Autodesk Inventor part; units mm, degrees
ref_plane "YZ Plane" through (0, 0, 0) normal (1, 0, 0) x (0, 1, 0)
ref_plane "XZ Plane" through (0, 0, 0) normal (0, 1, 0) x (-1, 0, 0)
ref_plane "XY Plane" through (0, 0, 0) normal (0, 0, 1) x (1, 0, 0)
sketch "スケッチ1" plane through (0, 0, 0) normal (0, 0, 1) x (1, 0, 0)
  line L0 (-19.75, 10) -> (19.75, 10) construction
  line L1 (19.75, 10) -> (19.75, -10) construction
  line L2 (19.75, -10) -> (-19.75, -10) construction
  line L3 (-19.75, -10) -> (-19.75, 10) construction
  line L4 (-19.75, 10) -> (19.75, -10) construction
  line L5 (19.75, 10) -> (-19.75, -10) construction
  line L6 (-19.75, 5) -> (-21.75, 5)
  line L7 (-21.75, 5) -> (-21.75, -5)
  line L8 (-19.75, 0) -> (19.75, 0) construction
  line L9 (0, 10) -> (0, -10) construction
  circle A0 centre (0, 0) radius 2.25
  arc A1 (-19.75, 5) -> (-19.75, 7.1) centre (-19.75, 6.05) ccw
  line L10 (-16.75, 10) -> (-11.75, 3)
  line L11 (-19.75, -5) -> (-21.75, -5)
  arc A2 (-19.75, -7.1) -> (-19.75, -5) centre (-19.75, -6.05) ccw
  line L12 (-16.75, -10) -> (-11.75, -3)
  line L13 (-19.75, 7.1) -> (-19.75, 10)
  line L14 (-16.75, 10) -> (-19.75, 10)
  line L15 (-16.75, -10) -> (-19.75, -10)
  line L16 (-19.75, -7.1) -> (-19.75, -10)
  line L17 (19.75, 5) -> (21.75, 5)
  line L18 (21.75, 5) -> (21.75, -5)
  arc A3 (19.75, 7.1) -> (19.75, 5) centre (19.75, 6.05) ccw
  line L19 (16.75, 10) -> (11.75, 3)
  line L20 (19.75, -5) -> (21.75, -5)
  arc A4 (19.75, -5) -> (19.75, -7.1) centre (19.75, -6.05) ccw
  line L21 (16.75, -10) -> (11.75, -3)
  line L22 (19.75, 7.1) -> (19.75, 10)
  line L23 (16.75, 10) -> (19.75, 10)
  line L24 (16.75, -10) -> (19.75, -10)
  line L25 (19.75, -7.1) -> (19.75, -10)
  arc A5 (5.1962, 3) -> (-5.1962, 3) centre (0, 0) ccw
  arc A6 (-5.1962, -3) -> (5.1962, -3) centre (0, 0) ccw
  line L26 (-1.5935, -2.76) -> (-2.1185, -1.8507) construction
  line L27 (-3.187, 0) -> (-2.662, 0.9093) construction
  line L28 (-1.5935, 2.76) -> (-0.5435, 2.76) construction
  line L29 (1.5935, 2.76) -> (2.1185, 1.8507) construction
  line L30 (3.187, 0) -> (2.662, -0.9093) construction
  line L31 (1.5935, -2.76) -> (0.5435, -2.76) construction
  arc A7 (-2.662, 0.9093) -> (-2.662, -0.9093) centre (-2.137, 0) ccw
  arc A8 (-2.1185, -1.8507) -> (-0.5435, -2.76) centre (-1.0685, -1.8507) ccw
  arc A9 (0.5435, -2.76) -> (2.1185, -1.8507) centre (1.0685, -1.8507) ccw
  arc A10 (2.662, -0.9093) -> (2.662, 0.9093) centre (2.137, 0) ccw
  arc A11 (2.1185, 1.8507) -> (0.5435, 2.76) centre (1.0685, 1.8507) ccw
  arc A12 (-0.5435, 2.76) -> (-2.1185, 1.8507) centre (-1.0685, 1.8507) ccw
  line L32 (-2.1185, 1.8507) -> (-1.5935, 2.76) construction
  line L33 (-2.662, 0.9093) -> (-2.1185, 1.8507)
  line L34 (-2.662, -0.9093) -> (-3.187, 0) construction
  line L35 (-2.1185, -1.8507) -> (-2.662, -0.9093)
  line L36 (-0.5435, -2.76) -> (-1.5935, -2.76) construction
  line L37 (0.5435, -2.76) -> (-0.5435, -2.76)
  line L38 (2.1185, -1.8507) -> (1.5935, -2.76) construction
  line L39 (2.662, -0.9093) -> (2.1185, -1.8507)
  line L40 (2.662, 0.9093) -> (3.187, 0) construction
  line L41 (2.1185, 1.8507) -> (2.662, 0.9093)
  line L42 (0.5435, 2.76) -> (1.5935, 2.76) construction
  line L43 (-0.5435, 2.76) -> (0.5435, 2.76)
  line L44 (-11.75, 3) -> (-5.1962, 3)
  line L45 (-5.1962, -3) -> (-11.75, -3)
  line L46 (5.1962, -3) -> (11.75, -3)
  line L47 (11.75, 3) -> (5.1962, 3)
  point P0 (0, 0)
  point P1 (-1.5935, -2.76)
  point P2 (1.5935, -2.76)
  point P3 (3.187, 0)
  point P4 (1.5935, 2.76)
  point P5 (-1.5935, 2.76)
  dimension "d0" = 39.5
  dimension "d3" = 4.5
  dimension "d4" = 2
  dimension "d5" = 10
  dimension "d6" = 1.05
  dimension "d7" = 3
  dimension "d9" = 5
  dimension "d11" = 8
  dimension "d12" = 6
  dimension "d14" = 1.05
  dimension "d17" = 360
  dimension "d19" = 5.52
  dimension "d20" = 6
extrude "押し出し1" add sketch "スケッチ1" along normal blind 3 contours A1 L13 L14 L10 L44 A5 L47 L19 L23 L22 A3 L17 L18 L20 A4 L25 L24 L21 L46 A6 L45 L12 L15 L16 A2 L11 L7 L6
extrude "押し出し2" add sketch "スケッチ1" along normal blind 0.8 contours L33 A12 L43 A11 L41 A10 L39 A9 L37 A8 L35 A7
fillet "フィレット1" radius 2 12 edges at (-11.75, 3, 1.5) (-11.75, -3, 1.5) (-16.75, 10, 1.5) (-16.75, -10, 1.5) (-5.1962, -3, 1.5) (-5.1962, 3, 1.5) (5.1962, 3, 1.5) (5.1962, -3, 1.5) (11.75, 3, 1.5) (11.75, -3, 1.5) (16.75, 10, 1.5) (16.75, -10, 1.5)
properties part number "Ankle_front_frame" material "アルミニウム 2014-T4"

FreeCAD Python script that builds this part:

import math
import FreeCAD as App
import Part
import Sketcher
Q = App.Units.Quantity


def edges_at(feature, points):
    """Names of the edges that pass closest to the given points."""
    edges = feature.Shape.Edges
    near = lambda p: min(range(len(edges)), key=lambda i: edges[i].distToShape(Part.Vertex(*p))[0])
    return sorted({f"Edge{near(p) + 1}" for p in points})

doc = App.newDocument("Part")
body = doc.addObject("PartDesign::Body", "Body")

sketch1 = doc.addObject("Sketcher::SketchObject", "Sketch")
body.addObject(sketch1)
sketch1.AttachmentSupport = (doc.XY_Plane, [""])
sketch1.MapMode = "FlatFace"
sketch1.addGeometry([
    Part.ArcOfCircle(Part.Circle(App.Vector(-19.8, 6, 0), App.Vector(0, 0, 1), 1), math.radians(-90), math.radians(90)),
    Part.LineSegment(App.Vector(-19.8, 5, 0), App.Vector(-21.8, 5, 0)),
    Part.LineSegment(App.Vector(-21.8, 5, 0), App.Vector(-21.8, -5, 0)),
    Part.LineSegment(App.Vector(-21.8, -5, 0), App.Vector(-19.8, -5, 0)),
    Part.ArcOfCircle(Part.Circle(App.Vector(-19.8, -6, 0), App.Vector(0, 0, 1), 1), math.radians(-90), math.radians(90)),
    Part.LineSegment(App.Vector(-19.8, -7.1, 0), App.Vector(-19.8, -10, 0)),
    Part.LineSegment(App.Vector(-19.8, -10, 0), App.Vector(-16.8, -10, 0)),
    Part.LineSegment(App.Vector(-16.8, -10, 0), App.Vector(-11.8, -3, 0)),
    Part.LineSegment(App.Vector(-11.8, -3, 0), App.Vector(-5.2, -3, 0)),
    Part.ArcOfCircle(Part.Circle(App.Vector(0, 0, 0), App.Vector(0, 0, 1), 6), math.radians(-150), math.radians(-30)),
    Part.LineSegment(App.Vector(5.2, -3, 0), App.Vector(11.8, -3, 0)),
    Part.LineSegment(App.Vector(11.8, -3, 0), App.Vector(16.8, -10, 0)),
    Part.LineSegment(App.Vector(16.8, -10, 0), App.Vector(19.8, -10, 0)),
    Part.LineSegment(App.Vector(19.8, -10, 0), App.Vector(19.8, -7.1, 0)),
    Part.ArcOfCircle(Part.Circle(App.Vector(19.8, -6, 0), App.Vector(0, 0, 1), 1), math.radians(90), math.radians(270)),
    Part.LineSegment(App.Vector(19.8, -5, 0), App.Vector(21.8, -5, 0)),
    Part.LineSegment(App.Vector(21.8, -5, 0), App.Vector(21.8, 5, 0)),
    Part.LineSegment(App.Vector(21.8, 5, 0), App.Vector(19.8, 5, 0)),
    Part.ArcOfCircle(Part.Circle(App.Vector(19.8, 6, 0), App.Vector(0, 0, 1), 1), math.radians(90), math.radians(270)),
    Part.LineSegment(App.Vector(19.8, 7.1, 0), App.Vector(19.8, 10, 0)),
    Part.LineSegment(App.Vector(19.8, 10, 0), App.Vector(16.8, 10, 0)),
    Part.LineSegment(App.Vector(16.8, 10, 0), App.Vector(11.8, 3, 0)),
    Part.LineSegment(App.Vector(11.8, 3, 0), App.Vector(5.2, 3, 0)),
    Part.ArcOfCircle(Part.Circle(App.Vector(0, 0, 0), App.Vector(0, 0, 1), 6), math.radians(30), math.radians(150)),
    Part.LineSegment(App.Vector(-5.2, 3, 0), App.Vector(-11.8, 3, 0)),
    Part.LineSegment(App.Vector(-11.8, 3, 0), App.Vector(-16.8, 10, 0)),
    Part.LineSegment(App.Vector(-16.8, 10, 0), App.Vector(-19.8, 10, 0)),
    Part.LineSegment(App.Vector(-19.8, 10, 0), App.Vector(-19.8, 7.1, 0)),
    Part.ArcOfCircle(Part.Circle(App.Vector(-2.1, 0, 0), App.Vector(0, 0, 1), 1), math.radians(120), math.radians(240)),
    Part.LineSegment(App.Vector(-2.7, 0.9, 0), App.Vector(-2.1, 1.9, 0)),
    Part.ArcOfCircle(Part.Circle(App.Vector(-1.1, 1.9, 0), App.Vector(0, 0, 1), 1), math.radians(60), math.radians(180)),
    Part.LineSegment(App.Vector(-0.5, 2.8, 0), App.Vector(0.5, 2.8, 0)),
    Part.ArcOfCircle(Part.Circle(App.Vector(1.1, 1.9, 0), App.Vector(0, 0, 1), 1.1), math.radians(0), math.radians(120)),
    Part.LineSegment(App.Vector(2.1, 1.9, 0), App.Vector(2.7, 0.9, 0)),
    Part.ArcOfCircle(Part.Circle(App.Vector(2.1, 0, 0), App.Vector(0, 0, 1), 1), math.radians(-60), math.radians(60)),
    Part.LineSegment(App.Vector(2.7, -0.9, 0), App.Vector(2.1, -1.9, 0)),
    Part.ArcOfCircle(Part.Circle(App.Vector(1.1, -1.9, 0), App.Vector(0, 0, 1), 1), math.radians(-120), math.radians(0)),
    Part.LineSegment(App.Vector(0.5, -2.8, 0), App.Vector(-0.5, -2.8, 0)),
    Part.ArcOfCircle(Part.Circle(App.Vector(-1.1, -1.9, 0), App.Vector(0, 0, 1), 1.1), math.radians(180), math.radians(300)),
    Part.LineSegment(App.Vector(-2.1, -1.9, 0), App.Vector(-2.7, -0.9, 0)),
], False)
sketch1.addConstraint([
    Sketcher.Constraint("Tangent", 0, 1, 1, 1),
    Sketcher.Constraint("Coincident", 1, 2, 2, 1),
    Sketcher.Constraint("Coincident", 2, 2, 3, 1),
    Sketcher.Constraint("Tangent", 3, 2, 4, 2),
    Sketcher.Constraint("Coincident", 4, 1, 5, 1),
    Sketcher.Constraint("Coincident", 5, 2, 6, 1),
    Sketcher.Constraint("Coincident", 6, 2, 7, 1),
    Sketcher.Constraint("Coincident", 7, 2, 8, 1),
    Sketcher.Constraint("Coincident", 8, 2, 9, 1),
    Sketcher.Constraint("Coincident", 9, 2, 10, 1),
    Sketcher.Constraint("Coincident", 10, 2, 11, 1),
    Sketcher.Constraint("Coincident", 11, 2, 12, 1),
    Sketcher.Constraint("Coincident", 12, 2, 13, 1),
    Sketcher.Constraint("Coincident", 13, 2, 14, 2),
    Sketcher.Constraint("Tangent", 14, 1, 15, 1),
    Sketcher.Constraint("Coincident", 15, 2, 16, 1),
    Sketcher.Constraint("Coincident", 16, 2, 17, 1),
    Sketcher.Constraint("Tangent", 17, 2, 18, 2),
    Sketcher.Constraint("Coincident", 18, 1, 19, 1),
    Sketcher.Constraint("Coincident", 19, 2, 20, 1),
    Sketcher.Constraint("Coincident", 20, 2, 21, 1),
    Sketcher.Constraint("Coincident", 21, 2, 22, 1),
    Sketcher.Constraint("Coincident", 22, 2, 23, 1),
    Sketcher.Constraint("Coincident", 23, 2, 24, 1),
    Sketcher.Constraint("Coincident", 24, 2, 25, 1),
    Sketcher.Constraint("Coincident", 25, 2, 26, 1),
    Sketcher.Constraint("Coincident", 26, 2, 27, 1),
    Sketcher.Constraint("Coincident", 27, 2, 0, 2),
    Sketcher.Constraint("Coincident", 28, 1, 29, 1),
    Sketcher.Constraint("Coincident", 29, 2, 30, 2),
    Sketcher.Constraint("Coincident", 30, 1, 31, 1),
    Sketcher.Constraint("Coincident", 31, 2, 32, 2),
    Sketcher.Constraint("Coincident", 32, 1, 33, 1),
    Sketcher.Constraint("Coincident", 33, 2, 34, 2),
    Sketcher.Constraint("Coincident", 34, 1, 35, 1),
    Sketcher.Constraint("Coincident", 35, 2, 36, 2),
    Sketcher.Constraint("Coincident", 36, 1, 37, 1),
    Sketcher.Constraint("Coincident", 37, 2, 38, 2),
    Sketcher.Constraint("Coincident", 38, 1, 39, 1),
    Sketcher.Constraint("Coincident", 39, 2, 28, 2),
    Sketcher.Constraint("Horizontal", 1),
    Sketcher.Constraint("Vertical", 2),
    Sketcher.Constraint("Horizontal", 3),
    Sketcher.Constraint("Vertical", 5),
    Sketcher.Constraint("Horizontal", 6),
    Sketcher.Constraint("Horizontal", 8),
    Sketcher.Constraint("Horizontal", 10),
    Sketcher.Constraint("Horizontal", 12),
    Sketcher.Constraint("Vertical", 13),
    Sketcher.Constraint("Horizontal", 15),
    Sketcher.Constraint("Vertical", 16),
    Sketcher.Constraint("Horizontal", 17),
    Sketcher.Constraint("Vertical", 19),
    Sketcher.Constraint("Horizontal", 20),
    Sketcher.Constraint("Horizontal", 22),
    Sketcher.Constraint("Horizontal", 24),
    Sketcher.Constraint("Horizontal", 26),
    Sketcher.Constraint("Vertical", 27),
    Sketcher.Constraint("Horizontal", 31),
    Sketcher.Constraint("Horizontal", 37),
    Sketcher.Constraint("Coincident", 9, 3, -1, 1),
    Sketcher.Constraint("Coincident", 23, 3, -1, 1),
    Sketcher.Constraint("Equal", 0, 4),
    Sketcher.Constraint("Equal", 4, 14),
    Sketcher.Constraint("Equal", 14, 18),
    Sketcher.Constraint("Equal", 9, 23),
    Sketcher.Constraint("Equal", 18, 28),
    Sketcher.Constraint("Equal", 28, 30),
    Sketcher.Constraint("Equal", 30, 32),
    Sketcher.Constraint("Equal", 32, 34),
    Sketcher.Constraint("Equal", 34, 36),
    Sketcher.Constraint("Equal", 36, 38),
    Sketcher.Constraint("Symmetric", 0, 3, 14, 3, -1, 1),
    Sketcher.Constraint("Symmetric", 4, 3, 18, 3, -1, 1),
    Sketcher.Constraint("Symmetric", 28, 3, 34, 3, -1, 1),
    Sketcher.Constraint("Symmetric", 30, 3, 36, 3, -1, 1),
    Sketcher.Constraint("Symmetric", 32, 3, 38, 3, -1, 1),
    Sketcher.Constraint("Symmetric", 5, 2, 19, 2, -1, 1),
    Sketcher.Constraint("Symmetric", 7, 2, 21, 2, -1, 1),
    Sketcher.Constraint("Symmetric", 10, 2, 24, 2, -1, 1),
    Sketcher.Constraint("Symmetric", 11, 2, 25, 2, -1, 1),
    Sketcher.Constraint("Symmetric", 4, 3, 14, 3, -2),
    Sketcher.Constraint("Symmetric", 30, 3, 32, 3, -2),
    Sketcher.Constraint("Symmetric", 7, 2, 10, 2, -2),
    Sketcher.Constraint("Symmetric", 6, 2, 11, 2, -2),
    Sketcher.Constraint("Symmetric", 28, 1, 33, 2, -2),
    Sketcher.Constraint("Parallel", 7, 21),
    Sketcher.Constraint("Parallel", 29, 35),
    Sketcher.Constraint("Parallel", 33, 39),
    Sketcher.Constraint("Horizontal", 32, 3, 29, 2),
    Sketcher.Constraint("Horizontal", 29, 2, 32, 1),
    Sketcher.Constraint("Horizontal", 38, 3, 35, 2),
    Sketcher.Constraint("Horizontal", 35, 2, 38, 1),
    Sketcher.Constraint("Vertical", 3, 2, 4, 1),
    Sketcher.Constraint("Vertical", 18, 3, 12, 2),
    Sketcher.Constraint("Vertical", 5, 2, 26, 2),
    Sketcher.Constraint("Vertical", 31, 2, 36, 1),
    Sketcher.Constraint("Equal", 3, 15),
    Sketcher.Constraint("Radius", 9, Q("6 mm")),
    Sketcher.Constraint("DistanceX", 1, 2, 1, 1, Q("2 mm")),
    Sketcher.Constraint("DistanceX", 6, 1, 6, 2, Q("3 mm")),
    Sketcher.Constraint("DistanceY", 2, 2, 2, 1, Q("10 mm")),
    Sketcher.Constraint("Radius", 0, Q("1.05 mm")),
    Sketcher.Constraint("DistanceY", 5, 2, -1, 1, Q("10 mm")),
    Sketcher.Constraint("DistanceY", 7, 2, -1, 1, Q("3 mm")),
    Sketcher.Constraint("DistanceX", 3, 2, 7, 2, Q("8 mm")),
    Sketcher.Constraint("DistanceX", 4, 3, 14, 3, Q("39.5 mm")),
    Sketcher.Constraint("Angle", 29, Q("60.0008 deg")),
    Sketcher.Constraint("DistanceX", 31, 1, 31, 2, Q("1.087 mm")),
    Sketcher.Constraint("DistanceY", -1, 1, 30, 1, Q("2.76 mm")),
    Sketcher.Constraint("DistanceY", 38, 3, 28, 1, Q("2.76 mm")),
    Sketcher.Constraint("Distance", 29, Q("1.087 mm")),
])
pad1 = doc.addObject("PartDesign::Pad", "Pad")
body.addObject(pad1)
pad1.Profile = sketch1
pad1.Length = 3

sketch2 = doc.addObject("Sketcher::SketchObject", "Sketch001")
body.addObject(sketch2)
sketch2.AttachmentSupport = (doc.XY_Plane, [""])
sketch2.MapMode = "FlatFace"
sketch2.addGeometry([
    Part.LineSegment(App.Vector(-2.1, 1.9, 0), App.Vector(-2.7, 0.9, 0)),
    Part.ArcOfCircle(Part.Circle(App.Vector(-2.1, 0, 0), App.Vector(0, 0, 1), 1), math.radians(120), math.radians(240)),
    Part.LineSegment(App.Vector(-2.7, -0.9, 0), App.Vector(-2.1, -1.9, 0)),
    Part.ArcOfCircle(Part.Circle(App.Vector(-1.1, -1.9, 0), App.Vector(0, 0, 1), 1.1), math.radians(180), math.radians(300)),
    Part.LineSegment(App.Vector(-0.5, -2.8, 0), App.Vector(0.5, -2.8, 0)),
    Part.ArcOfCircle(Part.Circle(App.Vector(1.1, -1.9, 0), App.Vector(0, 0, 1), 1), math.radians(-120), math.radians(0)),
    Part.LineSegment(App.Vector(2.1, -1.9, 0), App.Vector(2.7, -0.9, 0)),
    Part.ArcOfCircle(Part.Circle(App.Vector(2.1, 0, 0), App.Vector(0, 0, 1), 1), math.radians(-60), math.radians(60)),
    Part.LineSegment(App.Vector(2.7, 0.9, 0), App.Vector(2.1, 1.9, 0)),
    Part.ArcOfCircle(Part.Circle(App.Vector(1.1, 1.9, 0), App.Vector(0, 0, 1), 1.1), math.radians(0), math.radians(120)),
    Part.LineSegment(App.Vector(0.5, 2.8, 0), App.Vector(-0.5, 2.8, 0)),
    Part.ArcOfCircle(Part.Circle(App.Vector(-1.1, 1.9, 0), App.Vector(0, 0, 1), 1), math.radians(60), math.radians(180)),
    Part.Circle(App.Vector(0, 0, 0), App.Vector(0, 0, 1), 2.2),
], False)
sketch2.addConstraint([
    Sketcher.Constraint("Coincident", 0, 2, 1, 1),
    Sketcher.Constraint("Coincident", 1, 2, 2, 1),
    Sketcher.Constraint("Coincident", 2, 2, 3, 1),
    Sketcher.Constraint("Coincident", 3, 2, 4, 1),
    Sketcher.Constraint("Coincident", 4, 2, 5, 1),
    Sketcher.Constraint("Coincident", 5, 2, 6, 1),
    Sketcher.Constraint("Coincident", 6, 2, 7, 1),
    Sketcher.Constraint("Coincident", 7, 2, 8, 1),
    Sketcher.Constraint("Coincident", 8, 2, 9, 1),
    Sketcher.Constraint("Coincident", 9, 2, 10, 1),
    Sketcher.Constraint("Coincident", 10, 2, 11, 1),
    Sketcher.Constraint("Coincident", 11, 2, 0, 1),
    Sketcher.Constraint("Horizontal", 4),
    Sketcher.Constraint("Horizontal", 10),
    Sketcher.Constraint("Coincident", 12, 3, -1, 1),
    Sketcher.Constraint("Equal", 1, 3),
    Sketcher.Constraint("Equal", 3, 5),
    Sketcher.Constraint("Equal", 5, 7),
    Sketcher.Constraint("Equal", 7, 9),
    Sketcher.Constraint("Equal", 9, 11),
    Sketcher.Constraint("Symmetric", 1, 3, 7, 3, -1, 1),
    Sketcher.Constraint("Symmetric", 3, 3, 9, 3, -1, 1),
    Sketcher.Constraint("Symmetric", 5, 3, 11, 3, -1, 1),
    Sketcher.Constraint("Symmetric", 3, 3, 5, 3, -2),
    Sketcher.Constraint("Symmetric", 1, 2, 6, 2, -2),
    Sketcher.Constraint("Parallel", 0, 6),
    Sketcher.Constraint("Parallel", 2, 8),
    Sketcher.Constraint("Horizontal", 5, 3, 2, 2),
    Sketcher.Constraint("Horizontal", 2, 2, 5, 2),
    Sketcher.Constraint("Horizontal", 0, 2, 7, 2),
    Sketcher.Constraint("Horizontal", 11, 3, 8, 2),
    Sketcher.Constraint("Vertical", 4, 2, 9, 2),
    Sketcher.Constraint("Diameter", 12, Q("4.5 mm")),
    Sketcher.Constraint("Radius", 1, Q("1.05 mm")),
    Sketcher.Constraint("Angle", 0, Q("-119.9992 deg")),
    Sketcher.Constraint("DistanceX", 4, 1, 4, 2, Q("1.087 mm")),
    Sketcher.Constraint("DistanceY", 3, 2, -1, 1, Q("2.76 mm")),
    Sketcher.Constraint("DistanceY", 3, 3, 0, 2, Q("2.76 mm")),
    Sketcher.Constraint("Distance", 0, Q("1.087 mm")),
])
pad2 = doc.addObject("PartDesign::Pad", "Pad001")
body.addObject(pad2)
pad2.Profile = sketch2
pad2.Length = 0.8
doc.recompute()

fillet = doc.addObject("PartDesign::Fillet", "Fillet")
body.addObject(fillet)
fillet.Base = (pad2, edges_at(pad2, [
    (-11.75, 3, 1.5),
    (-11.75, -3, 1.5),
    (-16.75, 10, 1.5),
    (-16.75, -10, 1.5),
    (-5.196, -3, 1.5),
    (-5.196, 3, 1.5),
    (5.196, 3, 1.5),
    (5.196, -3, 1.5),
    (11.75, 3, 1.5),
    (11.75, -3, 1.5),
    (16.75, 10, 1.5),
    (16.75, -10, 1.5),
]))
fillet.Radius = 2

doc.recompute()
